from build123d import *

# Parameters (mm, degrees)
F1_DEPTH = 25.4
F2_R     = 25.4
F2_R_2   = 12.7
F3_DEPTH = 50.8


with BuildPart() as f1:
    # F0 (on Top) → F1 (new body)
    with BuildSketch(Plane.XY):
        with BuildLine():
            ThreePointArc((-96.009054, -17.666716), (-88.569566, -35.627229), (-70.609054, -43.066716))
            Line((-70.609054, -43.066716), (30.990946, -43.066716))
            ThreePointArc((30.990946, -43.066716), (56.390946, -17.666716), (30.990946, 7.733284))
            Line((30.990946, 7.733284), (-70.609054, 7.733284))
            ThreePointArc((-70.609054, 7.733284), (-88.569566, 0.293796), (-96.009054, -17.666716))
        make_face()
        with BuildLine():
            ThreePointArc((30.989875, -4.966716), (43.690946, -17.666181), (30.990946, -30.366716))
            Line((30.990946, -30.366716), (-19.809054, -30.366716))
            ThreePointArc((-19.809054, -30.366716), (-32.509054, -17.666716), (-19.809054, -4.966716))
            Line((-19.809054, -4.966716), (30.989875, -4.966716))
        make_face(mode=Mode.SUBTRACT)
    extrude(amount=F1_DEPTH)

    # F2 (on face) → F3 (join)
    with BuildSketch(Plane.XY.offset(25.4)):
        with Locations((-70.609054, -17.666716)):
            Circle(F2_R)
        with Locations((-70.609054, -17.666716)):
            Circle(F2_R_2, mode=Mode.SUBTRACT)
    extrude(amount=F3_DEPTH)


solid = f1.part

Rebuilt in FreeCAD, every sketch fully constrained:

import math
import FreeCAD as App
import Part
import Sketcher
Q = App.Units.Quantity

doc = App.newDocument("Part")
params = doc.addObject("Spreadsheet::Sheet", "Params")
for row, (alias, value) in enumerate([
    ("sketch1_radius", "1 in"),
    ("sketch1_radius2", "0.5 in"),
    ("sketch1_width", "4 in"),
    ("sketch1_width2", "2 in"),
    ("pad1_length", "1 in"),
    ("sketch2_diameter", "2 in"),
    ("sketch2_diameter2", "1 in"),
    ("pad2_length", "2 in"),
], start=1):
    params.set(f"A{row}", alias)
    params.set(f"B{row}", "=" + value)
    params.setAlias(f"B{row}", alias)

body = doc.addObject("PartDesign::Body", "Body")

# Sketch on XY plane
sketch1 = body.newObject("Sketcher::SketchObject", "Sketch")
sketch1.AttachmentSupport = (doc.getObject("XY_Plane"), [""])
sketch1.MapMode = "FlatFace"
sketch1.addGeometry(Part.ArcOfCircle(Part.Circle(App.Vector(-71, -18, 0), App.Vector(0, 0, 1), 25), math.radians(180), math.radians(270)), False)
sketch1.addGeometry(Part.LineSegment(App.Vector(-71, -43, 0), App.Vector(31, -43, 0)), False)
sketch1.addGeometry(Part.ArcOfCircle(Part.Circle(App.Vector(31, -18, 0), App.Vector(0, 0, 1), 25), math.radians(-90), math.radians(90)), False)
sketch1.addGeometry(Part.LineSegment(App.Vector(31, 8, 0), App.Vector(-71, 8, 0)), False)
sketch1.addGeometry(Part.ArcOfCircle(Part.Circle(App.Vector(-71, -18, 0), App.Vector(0, 0, 1), 25), math.radians(90), math.radians(180)), False)
sketch1.addGeometry(Part.LineSegment(App.Vector(-20, -5, 0), App.Vector(31, -5, 0)), False)
sketch1.addGeometry(Part.ArcOfCircle(Part.Circle(App.Vector(31, -18, 0), App.Vector(0, 0, 1), 13), math.radians(-90), math.radians(90)), False)
sketch1.addGeometry(Part.LineSegment(App.Vector(31, -30, 0), App.Vector(-20, -30, 0)), False)
sketch1.addGeometry(Part.ArcOfCircle(Part.Circle(App.Vector(-20, -18, 0), App.Vector(0, 0, 1), 13), math.radians(90), math.radians(270)), False)
sketch1.addConstraint(Sketcher.Constraint("Tangent", 0, 2, 1, 1))
sketch1.addConstraint(Sketcher.Constraint("Tangent", 1, 2, 2, 1))
sketch1.addConstraint(Sketcher.Constraint("Tangent", 2, 2, 3, 1))
sketch1.addConstraint(Sketcher.Constraint("Tangent", 3, 2, 4, 1))
sketch1.addConstraint(Sketcher.Constraint("Tangent", 4, 2, 0, 1))
sketch1.addConstraint(Sketcher.Constraint("Coincident", 5, 2, 6, 2))
sketch1.addConstraint(Sketcher.Constraint("Tangent", 6, 1, 7, 1))
sketch1.addConstraint(Sketcher.Constraint("Tangent", 7, 2, 8, 2))
sketch1.addConstraint(Sketcher.Constraint("Tangent", 8, 1, 5, 1))
sketch1.addConstraint(Sketcher.Constraint("Horizontal", 1))
sketch1.addConstraint(Sketcher.Constraint("Horizontal", 3))
sketch1.addConstraint(Sketcher.Constraint("Horizontal", 5))
sketch1.addConstraint(Sketcher.Constraint("Horizontal", 7))
sketch1.addConstraint(Sketcher.Constraint("Coincident", 6, 3, 2, 3))
sketch1.addConstraint(Sketcher.Constraint("Equal", 0, 2))
sketch1.addConstraint(Sketcher.Constraint("Horizontal", 8, 3, 4, 2))
sketch1.addConstraint(Sketcher.Constraint("Radius", 0, Q("1 in")))
sketch1.addConstraint(Sketcher.Constraint("Radius", 6, Q("0.5 in")))
sketch1.addConstraint(Sketcher.Constraint("DistanceX", 1, 1, 1, 2, Q("4 in")))
sketch1.addConstraint(Sketcher.Constraint("DistanceX", 7, 2, 7, 1, Q("2 in")))
sketch1.addConstraint(Sketcher.Constraint("DistanceX", 5, 1, 5, 2, 50.798929))
sketch1.addConstraint(Sketcher.Constraint("DistanceX", 0, 3, -1, 1, 70.609055))
sketch1.addConstraint(Sketcher.Constraint("DistanceY", 0, 3, -1, 1, 17.666717))
sketch1.setExpression("Constraints[16]", "Params.sketch1_radius")
sketch1.setExpression("Constraints[17]", "Params.sketch1_radius2")
sketch1.setExpression("Constraints[18]", "Params.sketch1_width")
sketch1.setExpression("Constraints[19]", "Params.sketch1_width2")
pad1 = body.newObject("PartDesign::Pad", "Pad")
pad1.Profile = sketch1
pad1.setExpression("Length", "Params.pad1_length")

# Sketch on XY plane
sketch2 = body.newObject("Sketcher::SketchObject", "Sketch001")
sketch2.AttachmentSupport = (doc.getObject("XY_Plane"), [""])
sketch2.MapMode = "FlatFace"
sketch2.AttachmentOffset = App.Placement(App.Vector(0, 0, 1 * 25.4), App.Rotation())
sketch2.addGeometry(Part.Circle(App.Vector(-71, -18, 0), App.Vector(0, 0, 1), 25), False)
sketch2.addGeometry(Part.Circle(App.Vector(-71, -18, 0), App.Vector(0, 0, 1), 13), False)
sketch2.addConstraint(Sketcher.Constraint("Coincident", 1, 3, 0, 3))
sketch2.addConstraint(Sketcher.Constraint("Diameter", 0, Q("2 in")))
sketch2.addConstraint(Sketcher.Constraint("Diameter", 1, Q("1 in")))
sketch2.addConstraint(Sketcher.Constraint("DistanceX", 0, 3, -1, 1, 70.609054))
sketch2.addConstraint(Sketcher.Constraint("DistanceY", 0, 3, -1, 1, 17.666716))
sketch2.setExpression("Constraints[1]", "Params.sketch2_diameter")
sketch2.setExpression("Constraints[2]", "Params.sketch2_diameter2")
pad2 = body.newObject("PartDesign::Pad", "Pad001")
pad2.Profile = sketch2
pad2.setExpression("Length", "Params.pad2_length")

doc.recompute()
